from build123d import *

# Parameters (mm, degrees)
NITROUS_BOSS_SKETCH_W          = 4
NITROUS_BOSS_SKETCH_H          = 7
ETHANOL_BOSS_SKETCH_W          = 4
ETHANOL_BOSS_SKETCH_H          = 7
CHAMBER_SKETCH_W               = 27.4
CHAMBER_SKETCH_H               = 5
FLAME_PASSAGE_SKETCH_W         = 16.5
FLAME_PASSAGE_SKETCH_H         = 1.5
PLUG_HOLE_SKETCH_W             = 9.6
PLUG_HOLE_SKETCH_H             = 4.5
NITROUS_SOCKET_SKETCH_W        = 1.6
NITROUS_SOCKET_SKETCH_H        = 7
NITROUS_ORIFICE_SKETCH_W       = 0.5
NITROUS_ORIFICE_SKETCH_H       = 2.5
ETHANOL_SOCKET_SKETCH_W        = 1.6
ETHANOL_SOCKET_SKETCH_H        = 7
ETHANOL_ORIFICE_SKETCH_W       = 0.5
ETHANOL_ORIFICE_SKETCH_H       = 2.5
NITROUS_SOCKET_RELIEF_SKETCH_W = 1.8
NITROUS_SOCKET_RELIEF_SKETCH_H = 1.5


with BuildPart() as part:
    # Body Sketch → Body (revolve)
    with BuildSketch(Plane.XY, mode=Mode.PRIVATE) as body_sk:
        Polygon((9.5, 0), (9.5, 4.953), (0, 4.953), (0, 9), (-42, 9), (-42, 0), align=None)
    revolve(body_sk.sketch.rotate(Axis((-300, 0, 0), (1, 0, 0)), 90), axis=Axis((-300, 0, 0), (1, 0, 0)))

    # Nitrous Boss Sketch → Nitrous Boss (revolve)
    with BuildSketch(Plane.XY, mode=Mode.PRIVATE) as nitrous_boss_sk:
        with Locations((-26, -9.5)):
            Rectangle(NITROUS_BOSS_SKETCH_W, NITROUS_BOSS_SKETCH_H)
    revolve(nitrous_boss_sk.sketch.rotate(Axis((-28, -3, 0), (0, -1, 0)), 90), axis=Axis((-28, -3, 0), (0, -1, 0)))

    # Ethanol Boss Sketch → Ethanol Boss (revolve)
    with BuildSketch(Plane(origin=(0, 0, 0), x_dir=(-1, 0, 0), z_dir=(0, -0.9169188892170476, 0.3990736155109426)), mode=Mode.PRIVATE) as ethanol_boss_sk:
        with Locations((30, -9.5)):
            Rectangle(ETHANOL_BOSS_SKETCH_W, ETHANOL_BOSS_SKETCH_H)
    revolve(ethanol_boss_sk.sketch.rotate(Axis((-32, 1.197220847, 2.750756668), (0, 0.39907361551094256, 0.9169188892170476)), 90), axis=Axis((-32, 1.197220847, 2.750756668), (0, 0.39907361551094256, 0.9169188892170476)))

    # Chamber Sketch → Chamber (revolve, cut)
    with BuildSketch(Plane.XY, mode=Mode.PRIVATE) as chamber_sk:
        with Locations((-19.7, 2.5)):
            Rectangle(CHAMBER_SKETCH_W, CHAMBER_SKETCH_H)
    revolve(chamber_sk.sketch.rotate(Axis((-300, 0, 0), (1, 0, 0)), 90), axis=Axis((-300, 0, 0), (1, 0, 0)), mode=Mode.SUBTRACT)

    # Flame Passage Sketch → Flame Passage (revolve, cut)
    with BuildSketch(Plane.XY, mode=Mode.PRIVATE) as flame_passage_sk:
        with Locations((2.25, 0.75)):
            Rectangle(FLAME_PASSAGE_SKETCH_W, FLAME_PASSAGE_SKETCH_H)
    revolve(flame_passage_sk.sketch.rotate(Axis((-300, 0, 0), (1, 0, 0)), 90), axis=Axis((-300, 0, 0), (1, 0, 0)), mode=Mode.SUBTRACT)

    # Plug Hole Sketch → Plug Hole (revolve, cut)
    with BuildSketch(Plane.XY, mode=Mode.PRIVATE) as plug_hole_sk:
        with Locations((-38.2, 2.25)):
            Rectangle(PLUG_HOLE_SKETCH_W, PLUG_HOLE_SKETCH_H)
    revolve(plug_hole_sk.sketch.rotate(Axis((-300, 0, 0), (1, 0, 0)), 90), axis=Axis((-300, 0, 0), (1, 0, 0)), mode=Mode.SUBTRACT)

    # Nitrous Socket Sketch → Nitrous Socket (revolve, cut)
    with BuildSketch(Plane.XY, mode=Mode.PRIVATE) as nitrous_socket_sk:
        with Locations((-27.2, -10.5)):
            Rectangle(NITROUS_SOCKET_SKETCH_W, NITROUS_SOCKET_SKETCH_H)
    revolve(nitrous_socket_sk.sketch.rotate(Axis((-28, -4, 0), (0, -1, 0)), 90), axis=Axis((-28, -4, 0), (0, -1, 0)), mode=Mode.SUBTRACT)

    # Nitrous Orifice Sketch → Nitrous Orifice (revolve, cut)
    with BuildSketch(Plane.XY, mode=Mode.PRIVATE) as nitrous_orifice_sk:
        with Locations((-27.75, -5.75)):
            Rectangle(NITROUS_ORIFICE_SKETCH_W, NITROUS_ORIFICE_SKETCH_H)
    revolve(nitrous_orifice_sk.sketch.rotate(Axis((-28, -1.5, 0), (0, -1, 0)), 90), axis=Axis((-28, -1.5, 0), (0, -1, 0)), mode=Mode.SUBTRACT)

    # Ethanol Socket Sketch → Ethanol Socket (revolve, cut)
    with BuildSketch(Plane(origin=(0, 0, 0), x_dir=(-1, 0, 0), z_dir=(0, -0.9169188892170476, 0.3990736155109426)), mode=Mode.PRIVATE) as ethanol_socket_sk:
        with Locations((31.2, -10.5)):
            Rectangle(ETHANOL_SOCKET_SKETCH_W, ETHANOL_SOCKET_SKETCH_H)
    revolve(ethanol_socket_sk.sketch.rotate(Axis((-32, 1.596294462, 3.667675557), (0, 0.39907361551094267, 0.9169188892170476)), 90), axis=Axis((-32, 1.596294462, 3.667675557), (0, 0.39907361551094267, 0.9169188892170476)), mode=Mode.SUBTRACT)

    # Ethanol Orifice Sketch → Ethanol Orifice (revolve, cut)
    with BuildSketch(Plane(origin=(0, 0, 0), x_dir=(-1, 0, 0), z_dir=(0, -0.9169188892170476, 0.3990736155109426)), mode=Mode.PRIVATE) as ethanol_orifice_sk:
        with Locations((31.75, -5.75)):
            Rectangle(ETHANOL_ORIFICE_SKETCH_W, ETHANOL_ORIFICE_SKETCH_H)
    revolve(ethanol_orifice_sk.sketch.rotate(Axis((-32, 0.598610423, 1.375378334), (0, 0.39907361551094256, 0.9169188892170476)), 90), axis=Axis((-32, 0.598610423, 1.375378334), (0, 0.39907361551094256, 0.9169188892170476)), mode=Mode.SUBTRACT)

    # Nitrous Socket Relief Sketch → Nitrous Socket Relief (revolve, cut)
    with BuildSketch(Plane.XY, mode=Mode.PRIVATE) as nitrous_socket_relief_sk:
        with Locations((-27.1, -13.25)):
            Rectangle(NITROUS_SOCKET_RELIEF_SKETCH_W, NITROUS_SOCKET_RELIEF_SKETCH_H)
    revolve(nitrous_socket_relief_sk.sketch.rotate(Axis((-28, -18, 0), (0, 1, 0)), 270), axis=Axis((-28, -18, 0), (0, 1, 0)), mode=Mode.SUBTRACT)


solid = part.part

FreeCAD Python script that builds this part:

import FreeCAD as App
import Part
import Sketcher

V = App.Vector
Q = App.Units.Quantity

doc = App.newDocument("Part")
params = doc.addObject("Spreadsheet::Sheet", "Params")
for row, (alias, value) in enumerate([
    ("sketch1_width", "42 mm"),
    ("sketch1_height", "9 mm"),
    ("sketch1_width2", "9.5 mm"),
    ("revolution_angle", "360 deg"),
    ("sketch2_width", "4 mm"),
    ("sketch2_height", "7 mm"),
    ("revolution2_angle", "360 deg"),
    ("sketch3_width", "4 mm"),
    ("sketch3_height", "7 mm"),
    ("revolution3_angle", "360 deg"),
    ("sketch4_height", "5 mm"),
    ("sketch4_width", "27.4 mm"),
    ("groove_angle", "360 deg"),
    ("sketch5_width", "16.5 mm"),
    ("sketch5_height", "1.5 mm"),
    ("groove2_angle", "360 deg"),
    ("sketch6_width", "9.6 mm"),
    ("sketch6_height", "4.5 mm"),
    ("groove3_angle", "360 deg"),
    ("sketch7_height", "7 mm"),
    ("sketch7_width", "1.6 mm"),
    ("groove4_angle", "360 deg"),
    ("sketch8_width", "0.5 mm"),
    ("sketch8_height", "2.5 mm"),
    ("groove5_angle", "360 deg"),
    ("sketch9_height", "7 mm"),
    ("sketch9_width", "1.6 mm"),
    ("groove6_angle", "360 deg"),
    ("sketch10_width", "0.5 mm"),
    ("sketch10_height", "2.5 mm"),
    ("groove7_angle", "360 deg"),
    ("sketch11_width", "1.8 mm"),
    ("sketch11_height", "1.5 mm"),
    ("groove8_angle", "360 deg"),
], start=1):
    params.set(f"A{row}", alias)
    params.set(f"B{row}", "=" + value)
    params.setAlias(f"B{row}", alias)

body = doc.addObject("PartDesign::Body", "Body")

# Sketch on XY plane
sketch1 = body.newObject("Sketcher::SketchObject", "Sketch")
sketch1.AttachmentSupport = (doc.getObject("XY_Plane"), [""])
sketch1.MapMode = "FlatFace"
sketch1.addGeometry([
    Part.LineSegment(V(9.5, 0, 0), V(9.5, 5, 0)),  # 0
    Part.LineSegment(V(9.5, 5, 0), V(0, 5, 0)),  # 1
    Part.LineSegment(V(0, 5, 0), V(0, 9, 0)),  # 2
    Part.LineSegment(V(0, 9, 0), V(-42, 9, 0)),  # 3
    Part.LineSegment(V(-42, 9, 0), V(-42, 0, 0)),  # 4
    Part.LineSegment(V(-42, 0, 0), V(9.5, 0, 0)),  # 5
], False)
sketch1.addConstraint([
    Sketcher.Constraint("Coincident", 0, 2, 1, 1),
    Sketcher.Constraint("Coincident", 1, 2, 2, 1),
    Sketcher.Constraint("Coincident", 2, 2, 3, 1),
    Sketcher.Constraint("Coincident", 3, 2, 4, 1),
    Sketcher.Constraint("Coincident", 4, 2, 5, 1),
    Sketcher.Constraint("Coincident", 5, 2, 0, 1),
    Sketcher.Constraint("Vertical", 0),
    Sketcher.Constraint("Horizontal", 1),
    Sketcher.Constraint("Vertical", 2),
    Sketcher.Constraint("Horizontal", 3),
    Sketcher.Constraint("Vertical", 4),
    Sketcher.Constraint("Horizontal", 5),
    Sketcher.Constraint("PointOnObject", 1, 2, -2),
    Sketcher.Constraint("PointOnObject", 4, 2, -1),
    Sketcher.Constraint("DistanceX", 3, 2, 3, 1, Q("42 mm")),
    Sketcher.Constraint("DistanceY", 4, 2, 4, 1, Q("9 mm")),
    Sketcher.Constraint("DistanceX", 1, 2, 1, 1, Q("9.5 mm")),
    Sketcher.Constraint("DistanceY", 0, 1, 0, 2, Q("4.953 mm")),
])
sketch1.setExpression("Constraints[14]", "Params.sketch1_width")
sketch1.setExpression("Constraints[15]", "Params.sketch1_height")
sketch1.setExpression("Constraints[16]", "Params.sketch1_width2")
revolution = body.newObject("PartDesign::Revolution", "Revolution")
revolution.Profile = sketch1
revolution.ReferenceAxis = (sketch1, ["H_Axis"])
revolution.setExpression("Angle", "Params.revolution_angle")

# Sketch on XY plane
sketch2 = body.newObject("Sketcher::SketchObject", "Sketch001")
sketch2.AttachmentSupport = (doc.getObject("XY_Plane"), [""])
sketch2.MapMode = "FlatFace"
sketch2.addGeometry([
    Part.LineSegment(V(-28, -6, 0), V(-28, -13, 0)),
    Part.LineSegment(V(-28, -13, 0), V(-24, -13, 0)),
    Part.LineSegment(V(-24, -13, 0), V(-24, -6, 0)),
    Part.LineSegment(V(-24, -6, 0), V(-28, -6, 0)),
], False)
sketch2.addGeometry(Part.LineSegment(V(-28, -6, 0), V(-28, -13, 0)), True)  # axis
sketch2.addConstraint([
    Sketcher.Constraint("Coincident", 0, 2, 1, 1),
    Sketcher.Constraint("Coincident", 1, 2, 2, 1),
    Sketcher.Constraint("Coincident", 2, 2, 3, 1),
    Sketcher.Constraint("Coincident", 3, 2, 0, 1),
    Sketcher.Constraint("Vertical", 0),
    Sketcher.Constraint("Horizontal", 1),
    Sketcher.Constraint("Vertical", 2),
    Sketcher.Constraint("Horizontal", 3),
    Sketcher.Constraint("Vertical", 4),
    Sketcher.Constraint("Coincident", 4, 1, 3, 2),
    Sketcher.Constraint("Horizontal", 1, 2, 4, 2),
    Sketcher.Constraint("DistanceX", 1, 1, 1, 2, Q("4 mm")),
    Sketcher.Constraint("DistanceY", 0, 2, 0, 1, Q("7 mm")),
    Sketcher.Constraint("DistanceX", 0, 2, -1, 1, Q("28 mm")),
    Sketcher.Constraint("DistanceY", 0, 2, -1, 1, Q("13 mm")),
])
sketch2.setExpression("Constraints[11]", "Params.sketch2_width")
sketch2.setExpression("Constraints[12]", "Params.sketch2_height")
revolution2 = body.newObject("PartDesign::Revolution", "Revolution001")
revolution2.Profile = sketch2
revolution2.ReferenceAxis = (sketch2, ["Axis0"])
revolution2.setExpression("Angle", "Params.revolution2_angle")

# Sketch on an angled plane
sketch3 = body.newObject("Sketcher::SketchObject", "Sketch002")
sketch3.Placement = App.Placement(V(0, 0, 0), App.Rotation(V(-1, 0, 0), V(0, -0.399073616, -0.916918889), V(0, -0.916918889, 0.399073616), "ZXY"))
sketch3.addGeometry([
    Part.LineSegment(V(28, -6, 0), V(28, -13, 0)),
    Part.LineSegment(V(28, -13, 0), V(32, -13, 0)),
    Part.LineSegment(V(32, -13, 0), V(32, -6, 0)),
    Part.LineSegment(V(32, -6, 0), V(28, -6, 0)),
], False)
sketch3.addGeometry(Part.LineSegment(V(32, -6, 0), V(32, -13, 0)), True)  # axis
sketch3.addConstraint([
    Sketcher.Constraint("Coincident", 0, 2, 1, 1),
    Sketcher.Constraint("Coincident", 1, 2, 2, 1),
    Sketcher.Constraint("Coincident", 2, 2, 3, 1),
    Sketcher.Constraint("Coincident", 3, 2, 0, 1),
    Sketcher.Constraint("Vertical", 0),
    Sketcher.Constraint("Horizontal", 1),
    Sketcher.Constraint("Vertical", 2),
    Sketcher.Constraint("Horizontal", 3),
    Sketcher.Constraint("Vertical", 4),
    Sketcher.Constraint("Coincident", 4, 1, 2, 2),
    Sketcher.Constraint("Horizontal", 0, 2, 4, 2),
    Sketcher.Constraint("DistanceX", 1, 1, 1, 2, Q("4 mm")),
    Sketcher.Constraint("DistanceY", 0, 2, 0, 1, Q("7 mm")),
    Sketcher.Constraint("DistanceX", -1, 1, 0, 2, Q("28 mm")),
    Sketcher.Constraint("DistanceY", 0, 2, -1, 1, Q("13 mm")),
])
sketch3.setExpression("Constraints[11]", "Params.sketch3_width")
sketch3.setExpression("Constraints[12]", "Params.sketch3_height")
revolution3 = body.newObject("PartDesign::Revolution", "Revolution002")
revolution3.Profile = sketch3
revolution3.ReferenceAxis = (sketch3, ["Axis0"])
revolution3.setExpression("Angle", "Params.revolution3_angle")

# Sketch on XY plane
sketch4 = body.newObject("Sketcher::SketchObject", "Sketch003")
sketch4.AttachmentSupport = (doc.getObject("XY_Plane"), [""])
sketch4.MapMode = "FlatFace"
sketch4.addGeometry([
    Part.LineSegment(V(-33, 5, 0), V(-33, 0, 0)),
    Part.LineSegment(V(-33, 0, 0), V(-6, 0, 0)),
    Part.LineSegment(V(-6, 0, 0), V(-6, 5, 0)),
    Part.LineSegment(V(-6, 5, 0), V(-33, 5, 0)),
], False)
sketch4.addConstraint([
    Sketcher.Constraint("Coincident", 0, 2, 1, 1),
    Sketcher.Constraint("Coincident", 1, 2, 2, 1),
    Sketcher.Constraint("Coincident", 2, 2, 3, 1),
    Sketcher.Constraint("Coincident", 3, 2, 0, 1),
    Sketcher.Constraint("Vertical", 0),
    Sketcher.Constraint("Horizontal", 1),
    Sketcher.Constraint("Vertical", 2),
    Sketcher.Constraint("Horizontal", 3),
    Sketcher.Constraint("PointOnObject", 0, 2, -1),
    Sketcher.Constraint("DistanceY", 0, 2, 0, 1, Q("5 mm")),
    Sketcher.Constraint("DistanceX", 1, 1, 1, 2, Q("27.4 mm")),
    Sketcher.Constraint("DistanceX", 1, 2, -1, 1, Q("6 mm")),
])
sketch4.setExpression("Constraints[9]", "Params.sketch4_height")
sketch4.setExpression("Constraints[10]", "Params.sketch4_width")
groove = body.newObject("PartDesign::Groove", "Groove")
groove.Profile = sketch4
groove.ReferenceAxis = (sketch4, ["H_Axis"])
groove.setExpression("Angle", "Params.groove_angle")

# Sketch on XY plane
sketch5 = body.newObject("Sketcher::SketchObject", "Sketch004")
sketch5.AttachmentSupport = (doc.getObject("XY_Plane"), [""])
sketch5.MapMode = "FlatFace"
sketch5.addGeometry([
    Part.LineSegment(V(-6, 1.5, 0), V(-6, 0, 0)),
    Part.LineSegment(V(-6, 0, 0), V(10.5, 0, 0)),
    Part.LineSegment(V(10.5, 0, 0), V(10.5, 1.5, 0)),
    Part.LineSegment(V(10.5, 1.5, 0), V(-6, 1.5, 0)),
], False)
sketch5.addConstraint([
    Sketcher.Constraint("Coincident", 0, 2, 1, 1),
    Sketcher.Constraint("Coincident", 1, 2, 2, 1),
    Sketcher.Constraint("Coincident", 2, 2, 3, 1),
    Sketcher.Constraint("Coincident", 3, 2, 0, 1),
    Sketcher.Constraint("Vertical", 0),
    Sketcher.Constraint("Horizontal", 1),
    Sketcher.Constraint("Vertical", 2),
    Sketcher.Constraint("Horizontal", 3),
    Sketcher.Constraint("PointOnObject", 0, 2, -1),
    Sketcher.Constraint("DistanceX", 1, 1, 1, 2, Q("16.5 mm")),
    Sketcher.Constraint("DistanceY", 0, 2, 0, 1, Q("1.5 mm")),
    Sketcher.Constraint("DistanceX", 0, 2, -1, 1, Q("6 mm")),
])
sketch5.setExpression("Constraints[9]", "Params.sketch5_width")
sketch5.setExpression("Constraints[10]", "Params.sketch5_height")
groove2 = body.newObject("PartDesign::Groove", "Groove001")
groove2.Profile = sketch5
groove2.ReferenceAxis = (sketch5, ["H_Axis"])
groove2.setExpression("Angle", "Params.groove2_angle")

# Sketch on XY plane
sketch6 = body.newObject("Sketcher::SketchObject", "Sketch005")
sketch6.AttachmentSupport = (doc.getObject("XY_Plane"), [""])
sketch6.MapMode = "FlatFace"
sketch6.addGeometry([
    Part.LineSegment(V(-43, 4.5, 0), V(-43, 0, 0)),
    Part.LineSegment(V(-43, 0, 0), V(-33.4, 0, 0)),
    Part.LineSegment(V(-33.4, 0, 0), V(-33.4, 4.5, 0)),
    Part.LineSegment(V(-33.4, 4.5, 0), V(-43, 4.5, 0)),
], False)
sketch6.addConstraint([
    Sketcher.Constraint("Coincident", 0, 2, 1, 1),
    Sketcher.Constraint("Coincident", 1, 2, 2, 1),
    Sketcher.Constraint("Coincident", 2, 2, 3, 1),
    Sketcher.Constraint("Coincident", 3, 2, 0, 1),
    Sketcher.Constraint("Vertical", 0),
    Sketcher.Constraint("Horizontal", 1),
    Sketcher.Constraint("Vertical", 2),
    Sketcher.Constraint("Horizontal", 3),
    Sketcher.Constraint("PointOnObject", 0, 2, -1),
    Sketcher.Constraint("DistanceX", 1, 1, 1, 2, Q("9.6 mm")),
    Sketcher.Constraint("DistanceY", 0, 2, 0, 1, Q("4.5 mm")),
    Sketcher.Constraint("DistanceX", 0, 2, -1, 1, Q("43 mm")),
])
sketch6.setExpression("Constraints[9]", "Params.sketch6_width")
sketch6.setExpression("Constraints[10]", "Params.sketch6_height")
groove3 = body.newObject("PartDesign::Groove", "Groove002")
groove3.Profile = sketch6
groove3.ReferenceAxis = (sketch6, ["H_Axis"])
groove3.setExpression("Angle", "Params.groove3_angle")

# Sketch on XY plane
sketch7 = body.newObject("Sketcher::SketchObject", "Sketch006")
sketch7.AttachmentSupport = (doc.getObject("XY_Plane"), [""])
sketch7.MapMode = "FlatFace"
sketch7.addGeometry([
    Part.LineSegment(V(-28, -7, 0), V(-28, -14, 0)),
    Part.LineSegment(V(-28, -14, 0), V(-26.4, -14, 0)),
    Part.LineSegment(V(-26.4, -14, 0), V(-26.4, -7, 0)),
    Part.LineSegment(V(-26.4, -7, 0), V(-28, -7, 0)),
], False)
sketch7.addGeometry(Part.LineSegment(V(-28, -7, 0), V(-28, -14, 0)), True)  # axis
sketch7.addConstraint([
    Sketcher.Constraint("Coincident", 0, 2, 1, 1),
    Sketcher.Constraint("Coincident", 1, 2, 2, 1),
    Sketcher.Constraint("Coincident", 2, 2, 3, 1),
    Sketcher.Constraint("Coincident", 3, 2, 0, 1),
    Sketcher.Constraint("Vertical", 0),
    Sketcher.Constraint("Horizontal", 1),
    Sketcher.Constraint("Vertical", 2),
    Sketcher.Constraint("Horizontal", 3),
    Sketcher.Constraint("Vertical", 4),
    Sketcher.Constraint("Coincident", 4, 1, 3, 2),
    Sketcher.Constraint("Horizontal", 1, 2, 4, 2),
    Sketcher.Constraint("DistanceY", 0, 2, 0, 1, Q("7 mm")),
    Sketcher.Constraint("DistanceX", 1, 1, 1, 2, Q("1.6 mm")),
    Sketcher.Constraint("DistanceX", 0, 2, -1, 1, Q("28 mm")),
    Sketcher.Constraint("DistanceY", 0, 2, -1, 1, Q("14 mm")),
])
sketch7.setExpression("Constraints[11]", "Params.sketch7_height")
sketch7.setExpression("Constraints[12]", "Params.sketch7_width")
groove4 = body.newObject("PartDesign::Groove", "Groove003")
groove4.Profile = sketch7
groove4.ReferenceAxis = (sketch7, ["Axis0"])
groove4.setExpression("Angle", "Params.groove4_angle")

# Sketch on XY plane
sketch8 = body.newObject("Sketcher::SketchObject", "Sketch007")
sketch8.AttachmentSupport = (doc.getObject("XY_Plane"), [""])
sketch8.MapMode = "FlatFace"
sketch8.addGeometry([
    Part.LineSegment(V(-28, -4.5, 0), V(-28, -7, 0)),
    Part.LineSegment(V(-28, -7, 0), V(-27.5, -7, 0)),
    Part.LineSegment(V(-27.5, -7, 0), V(-27.5, -4.5, 0)),
    Part.LineSegment(V(-27.5, -4.5, 0), V(-28, -4.5, 0)),
], False)
sketch8.addGeometry(Part.LineSegment(V(-28, -4.5, 0), V(-28, -7, 0)), True)  # axis
sketch8.addConstraint([
    Sketcher.Constraint("Coincident", 0, 2, 1, 1),
    Sketcher.Constraint("Coincident", 1, 2, 2, 1),
    Sketcher.Constraint("Coincident", 2, 2, 3, 1),
    Sketcher.Constraint("Coincident", 3, 2, 0, 1),
    Sketcher.Constraint("Vertical", 0),
    Sketcher.Constraint("Horizontal", 1),
    Sketcher.Constraint("Vertical", 2),
    Sketcher.Constraint("Horizontal", 3),
    Sketcher.Constraint("Vertical", 4),
    Sketcher.Constraint("Coincident", 4, 1, 3, 2),
    Sketcher.Constraint("Horizontal", 1, 2, 4, 2),
    Sketcher.Constraint("DistanceX", 1, 1, 1, 2, Q("0.5 mm")),
    Sketcher.Constraint("DistanceY", 0, 2, 0, 1, Q("2.5 mm")),
    Sketcher.Constraint("DistanceX", 0, 2, -1, 1, Q("28 mm")),
    Sketcher.Constraint("DistanceY", 0, 2, -1, 1, Q("7 mm")),
])
sketch8.setExpression("Constraints[11]", "Params.sketch8_width")
sketch8.setExpression("Constraints[12]", "Params.sketch8_height")
groove5 = body.newObject("PartDesign::Groove", "Groove004")
groove5.Profile = sketch8
groove5.ReferenceAxis = (sketch8, ["Axis0"])
groove5.setExpression("Angle", "Params.groove5_angle")

# Sketch on an angled plane
sketch9 = body.newObject("Sketcher::SketchObject", "Sketch008")
sketch9.Placement = App.Placement(V(0, 0, 0), App.Rotation(V(-1, 0, 0), V(0, -0.399073616, -0.916918889), V(0, -0.916918889, 0.399073616), "ZXY"))
sketch9.addGeometry([
    Part.LineSegment(V(30.4, -7, 0), V(30.4, -14, 0)),
    Part.LineSegment(V(30.4, -14, 0), V(32, -14, 0)),
    Part.LineSegment(V(32, -14, 0), V(32, -7, 0)),
    Part.LineSegment(V(32, -7, 0), V(30.4, -7, 0)),
], False)
sketch9.addGeometry(Part.LineSegment(V(32, -7, 0), V(32, -14, 0)), True)  # axis
sketch9.addConstraint([
    Sketcher.Constraint("Coincident", 0, 2, 1, 1),
    Sketcher.Constraint("Coincident", 1, 2, 2, 1),
    Sketcher.Constraint("Coincident", 2, 2, 3, 1),
    Sketcher.Constraint("Coincident", 3, 2, 0, 1),
    Sketcher.Constraint("Vertical", 0),
    Sketcher.Constraint("Horizontal", 1),
    Sketcher.Constraint("Vertical", 2),
    Sketcher.Constraint("Horizontal", 3),
    Sketcher.Constraint("Vertical", 4),
    Sketcher.Constraint("Coincident", 4, 1, 2, 2),
    Sketcher.Constraint("Horizontal", 0, 2, 4, 2),
    Sketcher.Constraint("DistanceY", 0, 2, 0, 1, Q("7 mm")),
    Sketcher.Constraint("DistanceX", 1, 1, 1, 2, Q("1.6 mm")),
    Sketcher.Constraint("DistanceY", 0, 2, -1, 1, Q("14 mm")),
    Sketcher.Constraint("DistanceX", -1, 1, 1, 2, Q("32 mm")),
])
sketch9.setExpression("Constraints[11]", "Params.sketch9_height")
sketch9.setExpression("Constraints[12]", "Params.sketch9_width")
groove6 = body.newObject("PartDesign::Groove", "Groove005")
groove6.Profile = sketch9
groove6.ReferenceAxis = (sketch9, ["Axis0"])
groove6.setExpression("Angle", "Params.groove6_angle")

# Sketch on an angled plane
sketch10 = body.newObject("Sketcher::SketchObject", "Sketch009")
sketch10.Placement = App.Placement(V(0, 0, 0), App.Rotation(V(-1, 0, 0), V(0, -0.399073616, -0.916918889), V(0, -0.916918889, 0.399073616), "ZXY"))
sketch10.addGeometry([
    Part.LineSegment(V(31.5, -4.5, 0), V(31.5, -7, 0)),
    Part.LineSegment(V(31.5, -7, 0), V(32, -7, 0)),
    Part.LineSegment(V(32, -7, 0), V(32, -4.5, 0)),
    Part.LineSegment(V(32, -4.5, 0), V(31.5, -4.5, 0)),
], False)
sketch10.addGeometry(Part.LineSegment(V(32, -4.5, 0), V(32, -7, 0)), True)  # axis
sketch10.addConstraint([
    Sketcher.Constraint("Coincident", 0, 2, 1, 1),
    Sketcher.Constraint("Coincident", 1, 2, 2, 1),
    Sketcher.Constraint("Coincident", 2, 2, 3, 1),
    Sketcher.Constraint("Coincident", 3, 2, 0, 1),
    Sketcher.Constraint("Vertical", 0),
    Sketcher.Constraint("Horizontal", 1),
    Sketcher.Constraint("Vertical", 2),
    Sketcher.Constraint("Horizontal", 3),
    Sketcher.Constraint("Vertical", 4),
    Sketcher.Constraint("Coincident", 4, 1, 2, 2),
    Sketcher.Constraint("Horizontal", 0, 2, 4, 2),
    Sketcher.Constraint("DistanceX", 1, 1, 1, 2, Q("0.5 mm")),
    Sketcher.Constraint("DistanceY", 0, 2, 0, 1, Q("2.5 mm")),
    Sketcher.Constraint("DistanceY", 0, 2, -1, 1, Q("7 mm")),
    Sketcher.Constraint("DistanceX", -1, 1, 1, 2, Q("32 mm")),
])
sketch10.setExpression("Constraints[11]", "Params.sketch10_width")
sketch10.setExpression("Constraints[12]", "Params.sketch10_height")
groove7 = body.newObject("PartDesign::Groove", "Groove006")
groove7.Profile = sketch10
groove7.ReferenceAxis = (sketch10, ["Axis0"])
groove7.setExpression("Angle", "Params.groove7_angle")

# Sketch on XY plane
sketch11 = body.newObject("Sketcher::SketchObject", "Sketch010")
sketch11.AttachmentSupport = (doc.getObject("XY_Plane"), [""])
sketch11.MapMode = "FlatFace"
sketch11.addGeometry([
    Part.LineSegment(V(-28, -12.5, 0), V(-28, -14, 0)),
    Part.LineSegment(V(-28, -14, 0), V(-26.2, -14, 0)),
    Part.LineSegment(V(-26.2, -14, 0), V(-26.2, -12.5, 0)),
    Part.LineSegment(V(-26.2, -12.5, 0), V(-28, -12.5, 0)),
], False)
sketch11.addGeometry(Part.LineSegment(V(-28, -14, 0), V(-28, -12.5, 0)), True)  # axis
sketch11.addConstraint([
    Sketcher.Constraint("Coincident", 0, 2, 1, 1),
    Sketcher.Constraint("Coincident", 1, 2, 2, 1),
    Sketcher.Constraint("Coincident", 2, 2, 3, 1),
    Sketcher.Constraint("Coincident", 3, 2, 0, 1),
    Sketcher.Constraint("Vertical", 0),
    Sketcher.Constraint("Horizontal", 1),
    Sketcher.Constraint("Vertical", 2),
    Sketcher.Constraint("Horizontal", 3),
    Sketcher.Constraint("Vertical", 4),
    Sketcher.Constraint("Coincident", 4, 1, 0, 2),
    Sketcher.Constraint("Horizontal", 2, 2, 4, 2),
    Sketcher.Constraint("DistanceX", 1, 1, 1, 2, Q("1.8 mm")),
    Sketcher.Constraint("DistanceY", 0, 2, 0, 1, Q("1.5 mm")),
    Sketcher.Constraint("DistanceX", 0, 2, -1, 1, Q("28 mm")),
    Sketcher.Constraint("DistanceY", 0, 2, -1, 1, Q("14 mm")),
])
sketch11.setExpression("Constraints[11]", "Params.sketch11_width")
sketch11.setExpression("Constraints[12]", "Params.sketch11_height")
groove8 = body.newObject("PartDesign::Groove", "Groove007")
groove8.Profile = sketch11
groove8.ReferenceAxis = (sketch11, ["Axis0"])
groove8.setExpression("Angle", "Params.groove8_angle")

doc.recompute()
